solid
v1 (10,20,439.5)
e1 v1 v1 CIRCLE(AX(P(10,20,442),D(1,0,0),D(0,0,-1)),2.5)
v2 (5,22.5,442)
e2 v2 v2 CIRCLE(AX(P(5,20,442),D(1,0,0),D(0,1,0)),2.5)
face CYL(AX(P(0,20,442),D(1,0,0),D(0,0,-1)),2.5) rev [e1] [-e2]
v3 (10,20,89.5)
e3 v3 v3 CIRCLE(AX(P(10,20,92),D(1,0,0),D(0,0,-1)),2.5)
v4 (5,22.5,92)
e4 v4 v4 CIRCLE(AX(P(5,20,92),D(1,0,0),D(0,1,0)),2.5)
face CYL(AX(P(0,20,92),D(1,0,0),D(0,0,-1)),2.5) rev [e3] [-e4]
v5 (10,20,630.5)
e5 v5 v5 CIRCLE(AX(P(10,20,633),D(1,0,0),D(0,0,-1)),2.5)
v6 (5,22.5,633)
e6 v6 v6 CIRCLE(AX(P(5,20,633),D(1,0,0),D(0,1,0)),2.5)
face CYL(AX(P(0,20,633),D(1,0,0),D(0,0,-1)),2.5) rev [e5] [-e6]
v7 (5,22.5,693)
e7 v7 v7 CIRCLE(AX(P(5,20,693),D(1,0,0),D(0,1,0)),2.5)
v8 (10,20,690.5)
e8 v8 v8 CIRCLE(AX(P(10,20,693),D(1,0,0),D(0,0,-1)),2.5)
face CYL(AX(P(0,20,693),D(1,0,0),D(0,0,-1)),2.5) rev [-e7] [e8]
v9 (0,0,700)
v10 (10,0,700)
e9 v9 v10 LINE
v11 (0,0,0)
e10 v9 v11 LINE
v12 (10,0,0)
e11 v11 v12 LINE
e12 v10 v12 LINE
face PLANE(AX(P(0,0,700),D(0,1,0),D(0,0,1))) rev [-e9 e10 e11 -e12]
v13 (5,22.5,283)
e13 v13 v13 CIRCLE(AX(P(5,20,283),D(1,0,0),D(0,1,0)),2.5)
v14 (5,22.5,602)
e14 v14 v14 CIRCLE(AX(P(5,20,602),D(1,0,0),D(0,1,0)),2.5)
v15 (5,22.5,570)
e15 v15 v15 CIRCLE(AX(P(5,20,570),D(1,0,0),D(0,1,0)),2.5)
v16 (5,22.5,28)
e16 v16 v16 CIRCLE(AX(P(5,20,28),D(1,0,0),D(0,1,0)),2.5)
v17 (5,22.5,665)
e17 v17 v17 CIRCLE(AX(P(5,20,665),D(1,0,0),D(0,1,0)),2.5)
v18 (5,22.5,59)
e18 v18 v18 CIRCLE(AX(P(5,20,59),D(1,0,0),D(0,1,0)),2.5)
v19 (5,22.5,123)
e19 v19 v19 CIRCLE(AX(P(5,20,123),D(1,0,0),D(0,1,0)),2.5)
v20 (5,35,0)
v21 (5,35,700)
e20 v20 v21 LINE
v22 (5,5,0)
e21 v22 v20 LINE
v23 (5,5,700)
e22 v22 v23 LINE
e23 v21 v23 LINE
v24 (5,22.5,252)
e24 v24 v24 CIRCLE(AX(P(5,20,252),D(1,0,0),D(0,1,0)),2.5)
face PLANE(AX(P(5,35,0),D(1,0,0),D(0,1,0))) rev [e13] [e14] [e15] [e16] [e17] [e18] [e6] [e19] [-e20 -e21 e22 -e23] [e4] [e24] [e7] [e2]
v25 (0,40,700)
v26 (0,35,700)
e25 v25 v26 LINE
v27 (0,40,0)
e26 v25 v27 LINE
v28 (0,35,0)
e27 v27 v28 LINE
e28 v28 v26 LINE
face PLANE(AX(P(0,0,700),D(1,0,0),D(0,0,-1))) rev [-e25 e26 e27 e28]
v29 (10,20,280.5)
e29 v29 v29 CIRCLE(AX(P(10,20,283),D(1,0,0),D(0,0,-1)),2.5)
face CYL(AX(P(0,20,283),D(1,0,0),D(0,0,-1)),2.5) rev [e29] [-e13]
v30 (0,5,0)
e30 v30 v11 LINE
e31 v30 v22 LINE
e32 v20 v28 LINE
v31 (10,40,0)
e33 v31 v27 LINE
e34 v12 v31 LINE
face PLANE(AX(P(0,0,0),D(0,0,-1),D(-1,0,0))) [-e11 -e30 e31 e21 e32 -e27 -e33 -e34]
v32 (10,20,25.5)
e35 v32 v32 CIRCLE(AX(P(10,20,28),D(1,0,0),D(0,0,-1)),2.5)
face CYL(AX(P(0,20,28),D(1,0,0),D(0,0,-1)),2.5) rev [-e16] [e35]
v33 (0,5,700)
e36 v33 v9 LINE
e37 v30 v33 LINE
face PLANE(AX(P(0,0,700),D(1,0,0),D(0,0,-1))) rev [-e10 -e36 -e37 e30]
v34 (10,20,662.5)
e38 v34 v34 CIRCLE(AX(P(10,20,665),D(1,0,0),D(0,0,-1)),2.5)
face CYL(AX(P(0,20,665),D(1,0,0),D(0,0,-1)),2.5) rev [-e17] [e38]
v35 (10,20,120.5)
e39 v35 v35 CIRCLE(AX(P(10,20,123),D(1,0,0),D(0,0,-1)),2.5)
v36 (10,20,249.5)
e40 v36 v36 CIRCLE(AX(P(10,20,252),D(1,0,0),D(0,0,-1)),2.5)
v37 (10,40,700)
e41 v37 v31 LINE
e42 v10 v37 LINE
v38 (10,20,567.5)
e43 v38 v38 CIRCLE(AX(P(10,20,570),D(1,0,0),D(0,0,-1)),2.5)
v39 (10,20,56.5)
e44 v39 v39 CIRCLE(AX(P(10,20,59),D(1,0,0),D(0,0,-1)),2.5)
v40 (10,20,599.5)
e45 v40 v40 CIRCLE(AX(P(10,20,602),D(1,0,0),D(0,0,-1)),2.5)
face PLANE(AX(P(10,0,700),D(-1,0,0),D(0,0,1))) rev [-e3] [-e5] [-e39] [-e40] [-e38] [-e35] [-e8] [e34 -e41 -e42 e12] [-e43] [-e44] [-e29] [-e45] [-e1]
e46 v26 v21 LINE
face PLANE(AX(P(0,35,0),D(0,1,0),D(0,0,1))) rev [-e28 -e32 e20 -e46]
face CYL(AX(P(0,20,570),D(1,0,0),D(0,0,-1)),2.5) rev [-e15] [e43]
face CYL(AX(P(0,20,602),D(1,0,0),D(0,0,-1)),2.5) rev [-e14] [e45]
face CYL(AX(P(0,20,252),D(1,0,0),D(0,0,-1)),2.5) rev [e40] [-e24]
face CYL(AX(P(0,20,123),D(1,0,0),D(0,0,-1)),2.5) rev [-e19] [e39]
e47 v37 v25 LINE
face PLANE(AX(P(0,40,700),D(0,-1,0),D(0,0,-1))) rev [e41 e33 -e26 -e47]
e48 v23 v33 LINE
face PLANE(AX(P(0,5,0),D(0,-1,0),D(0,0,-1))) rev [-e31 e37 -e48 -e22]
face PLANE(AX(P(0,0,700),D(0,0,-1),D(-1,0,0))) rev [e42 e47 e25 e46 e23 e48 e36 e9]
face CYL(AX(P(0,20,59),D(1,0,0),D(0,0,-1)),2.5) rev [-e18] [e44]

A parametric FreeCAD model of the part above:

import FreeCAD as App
import Part
import Sketcher
from FreeCAD import Vector

doc = App.newDocument("Part")
params = doc.addObject("Spreadsheet::Sheet", "Params")
for row, (alias, value) in enumerate([
    ("sketch1_width", "10 mm"),
    ("sketch1_height", "40 mm"),
    ("pad1_length", "700 mm"),
    ("sketch2_width", "5 mm"),
    ("sketch2_height", "30 mm"),
    ("sketch3_diameter", "5 mm"),
], start=1):
    params.set(f"A{row}", alias)
    params.set(f"B{row}", "=" + value)
    params.setAlias(f"B{row}", alias)

body = doc.addObject("PartDesign::Body", "Body")

sketch1 = body.newObject("Sketcher::SketchObject", "Sketch")
sketch1.AttachmentSupport = (doc.getObject("XY_Plane"), [""])
sketch1.MapMode = "FlatFace"
sketch1.addGeometry(Part.LineSegment(Vector(0, 40, 0), Vector(0, 0, 0)), False)
sketch1.addGeometry(Part.LineSegment(Vector(0, 0, 0), Vector(10, 0, 0)), False)
sketch1.addGeometry(Part.LineSegment(Vector(10, 0, 0), Vector(10, 40, 0)), False)
sketch1.addGeometry(Part.LineSegment(Vector(10, 40, 0), Vector(0, 40, 0)), False)
sketch1.addConstraint(Sketcher.Constraint("Coincident", 0, 2, 1, 1))
sketch1.addConstraint(Sketcher.Constraint("Coincident", 1, 2, 2, 1))
sketch1.addConstraint(Sketcher.Constraint("Coincident", 2, 2, 3, 1))
sketch1.addConstraint(Sketcher.Constraint("Coincident", 3, 2, 0, 1))
sketch1.addConstraint(Sketcher.Constraint("Vertical", 0))
sketch1.addConstraint(Sketcher.Constraint("Horizontal", 1))
sketch1.addConstraint(Sketcher.Constraint("Vertical", 2))
sketch1.addConstraint(Sketcher.Constraint("Horizontal", 3))
sketch1.addConstraint(Sketcher.Constraint("Coincident", 0, 2, -1, 1))
sketch1.addConstraint(Sketcher.Constraint("DistanceX", 1, 1, 1, 2, 10.0))
sketch1.addConstraint(Sketcher.Constraint("DistanceY", 0, 2, 0, 1, 40.0))
sketch1.setExpression("Constraints[9]", "Params.sketch1_width")
sketch1.setExpression("Constraints[10]", "Params.sketch1_height")
pad1 = body.newObject("PartDesign::Pad", "Pad")
pad1.Profile = sketch1
pad1.setExpression("Length", "Params.pad1_length")

sketch2 = body.newObject("Sketcher::SketchObject", "Sketch001")
sketch2.AttachmentSupport = (doc.getObject("XY_Plane"), [""])
sketch2.MapMode = "FlatFace"
sketch2.AttachmentOffset = App.Placement(Vector(0, 0, 700), App.Rotation())
sketch2.addGeometry(Part.LineSegment(Vector(0, 35, 0), Vector(0, 5, 0)), False)
sketch2.addGeometry(Part.LineSegment(Vector(0, 5, 0), Vector(5, 5, 0)), False)
sketch2.addGeometry(Part.LineSegment(Vector(5, 5, 0), Vector(5, 35, 0)), False)
sketch2.addGeometry(Part.LineSegment(Vector(5, 35, 0), Vector(0, 35, 0)), False)
sketch2.addConstraint(Sketcher.Constraint("Coincident", 0, 2, 1, 1))
sketch2.addConstraint(Sketcher.Constraint("Coincident", 1, 2, 2, 1))
sketch2.addConstraint(Sketcher.Constraint("Coincident", 2, 2, 3, 1))
sketch2.addConstraint(Sketcher.Constraint("Coincident", 3, 2, 0, 1))
sketch2.addConstraint(Sketcher.Constraint("Vertical", 0))
sketch2.addConstraint(Sketcher.Constraint("Horizontal", 1))
sketch2.addConstraint(Sketcher.Constraint("Vertical", 2))
sketch2.addConstraint(Sketcher.Constraint("Horizontal", 3))
sketch2.addConstraint(Sketcher.Constraint("PointOnObject", 0, 2, -2))
sketch2.addConstraint(Sketcher.Constraint("DistanceX", 1, 1, 1, 2, 5.0))
sketch2.addConstraint(Sketcher.Constraint("DistanceY", 0, 2, 0, 1, 30.0))
sketch2.addConstraint(Sketcher.Constraint("DistanceY", -1, 1, 0, 2, 5.0))
sketch2.setExpression("Constraints[9]", "Params.sketch2_width")
sketch2.setExpression("Constraints[10]", "Params.sketch2_height")
pocket1 = body.newObject("PartDesign::Pocket", "Pocket")
pocket1.Profile = sketch2
pocket1.Type = "ThroughAll"
pocket1.Midplane = True

sketch3 = body.newObject("Sketcher::SketchObject", "Sketch002")
sketch3.AttachmentSupport = (doc.getObject("YZ_Plane"), [""])
sketch3.MapMode = "FlatFace"
sketch3.AttachmentOffset = App.Placement(Vector(0, 0, 10), App.Rotation())
sketch3.addGeometry(Part.Circle(Vector(20, 693, 0), Vector(0, 0, 1), 2.5), False)
sketch3.addGeometry(Part.Circle(Vector(20, 665, 0), Vector(0, 0, 1), 2.5), False)
sketch3.addGeometry(Part.Circle(Vector(20, 633, 0), Vector(0, 0, 1), 2.5), False)
sketch3.addGeometry(Part.Circle(Vector(20, 602, 0), Vector(0, 0, 1), 2.5), False)
sketch3.addGeometry(Part.Circle(Vector(20, 570, 0), Vector(0, 0, 1), 2.5), False)
sketch3.addGeometry(Part.Circle(Vector(20, 442, 0), Vector(0, 0, 1), 2.5), False)
sketch3.addGeometry(Part.Circle(Vector(20, 283, 0), Vector(0, 0, 1), 2.5), False)
sketch3.addGeometry(Part.Circle(Vector(20, 252, 0), Vector(0, 0, 1), 2.5), False)
sketch3.addGeometry(Part.Circle(Vector(20, 123, 0), Vector(0, 0, 1), 2.5), False)
sketch3.addGeometry(Part.Circle(Vector(20, 92, 0), Vector(0, 0, 1), 2.5), False)
sketch3.addGeometry(Part.Circle(Vector(20, 59, 0), Vector(0, 0, 1), 2.5), False)
sketch3.addGeometry(Part.Circle(Vector(20, 28, 0), Vector(0, 0, 1), 2.5), False)
sketch3.addConstraint(Sketcher.Constraint("Equal", 0, 1))
sketch3.addConstraint(Sketcher.Constraint("Equal", 1, 2))
sketch3.addConstraint(Sketcher.Constraint("Equal", 2, 3))
sketch3.addConstraint(Sketcher.Constraint("Equal", 3, 4))
sketch3.addConstraint(Sketcher.Constraint("Equal", 4, 5))
sketch3.addConstraint(Sketcher.Constraint("Equal", 5, 6))
sketch3.addConstraint(Sketcher.Constraint("Equal", 6, 7))
sketch3.addConstraint(Sketcher.Constraint("Equal", 7, 8))
sketch3.addConstraint(Sketcher.Constraint("Equal", 8, 9))
sketch3.addConstraint(Sketcher.Constraint("Equal", 9, 10))
sketch3.addConstraint(Sketcher.Constraint("Equal", 10, 11))
sketch3.addConstraint(Sketcher.Constraint("Vertical", 0, 3, 1, 3))
sketch3.addConstraint(Sketcher.Constraint("Vertical", 1, 3, 2, 3))
sketch3.addConstraint(Sketcher.Constraint("Vertical", 2, 3, 3, 3))
sketch3.addConstraint(Sketcher.Constraint("Vertical", 3, 3, 4, 3))
sketch3.addConstraint(Sketcher.Constraint("Vertical", 4, 3, 5, 3))
sketch3.addConstraint(Sketcher.Constraint("Vertical", 5, 3, 6, 3))
sketch3.addConstraint(Sketcher.Constraint("Vertical", 6, 3, 7, 3))
sketch3.addConstraint(Sketcher.Constraint("Vertical", 7, 3, 8, 3))
sketch3.addConstraint(Sketcher.Constraint("Vertical", 8, 3, 9, 3))
sketch3.addConstraint(Sketcher.Constraint("Vertical", 9, 3, 10, 3))
sketch3.addConstraint(Sketcher.Constraint("Vertical", 10, 3, 11, 3))
sketch3.addConstraint(Sketcher.Constraint("Diameter", 0, 5.0))
sketch3.addConstraint(Sketcher.Constraint("DistanceX", -1, 1, 0, 3, 20.0))
sketch3.addConstraint(Sketcher.Constraint("DistanceY", -1, 1, 0, 3, 693.0))
sketch3.addConstraint(Sketcher.Constraint("DistanceY", -1, 1, 1, 3, 665.0))
sketch3.addConstraint(Sketcher.Constraint("DistanceY", -1, 1, 2, 3, 633.0))
sketch3.addConstraint(Sketcher.Constraint("DistanceY", -1, 1, 3, 3, 602.0))
sketch3.addConstraint(Sketcher.Constraint("DistanceY", -1, 1, 4, 3, 570.0))
sketch3.addConstraint(Sketcher.Constraint("DistanceY", -1, 1, 5, 3, 442.0))
sketch3.addConstraint(Sketcher.Constraint("DistanceY", -1, 1, 6, 3, 283.0))
sketch3.addConstraint(Sketcher.Constraint("DistanceY", -1, 1, 7, 3, 252.0))
sketch3.addConstraint(Sketcher.Constraint("DistanceY", -1, 1, 8, 3, 123.0))
sketch3.addConstraint(Sketcher.Constraint("DistanceY", -1, 1, 9, 3, 92.0))
sketch3.addConstraint(Sketcher.Constraint("DistanceY", -1, 1, 10, 3, 59.0))
sketch3.addConstraint(Sketcher.Constraint("DistanceY", -1, 1, 11, 3, 28.0))
sketch3.setExpression("Constraints[22]", "Params.sketch3_diameter")
pocket2 = body.newObject("PartDesign::Pocket", "Pocket001")
pocket2.Profile = sketch3
pocket2.Type = "ThroughAll"

doc.recompute()
